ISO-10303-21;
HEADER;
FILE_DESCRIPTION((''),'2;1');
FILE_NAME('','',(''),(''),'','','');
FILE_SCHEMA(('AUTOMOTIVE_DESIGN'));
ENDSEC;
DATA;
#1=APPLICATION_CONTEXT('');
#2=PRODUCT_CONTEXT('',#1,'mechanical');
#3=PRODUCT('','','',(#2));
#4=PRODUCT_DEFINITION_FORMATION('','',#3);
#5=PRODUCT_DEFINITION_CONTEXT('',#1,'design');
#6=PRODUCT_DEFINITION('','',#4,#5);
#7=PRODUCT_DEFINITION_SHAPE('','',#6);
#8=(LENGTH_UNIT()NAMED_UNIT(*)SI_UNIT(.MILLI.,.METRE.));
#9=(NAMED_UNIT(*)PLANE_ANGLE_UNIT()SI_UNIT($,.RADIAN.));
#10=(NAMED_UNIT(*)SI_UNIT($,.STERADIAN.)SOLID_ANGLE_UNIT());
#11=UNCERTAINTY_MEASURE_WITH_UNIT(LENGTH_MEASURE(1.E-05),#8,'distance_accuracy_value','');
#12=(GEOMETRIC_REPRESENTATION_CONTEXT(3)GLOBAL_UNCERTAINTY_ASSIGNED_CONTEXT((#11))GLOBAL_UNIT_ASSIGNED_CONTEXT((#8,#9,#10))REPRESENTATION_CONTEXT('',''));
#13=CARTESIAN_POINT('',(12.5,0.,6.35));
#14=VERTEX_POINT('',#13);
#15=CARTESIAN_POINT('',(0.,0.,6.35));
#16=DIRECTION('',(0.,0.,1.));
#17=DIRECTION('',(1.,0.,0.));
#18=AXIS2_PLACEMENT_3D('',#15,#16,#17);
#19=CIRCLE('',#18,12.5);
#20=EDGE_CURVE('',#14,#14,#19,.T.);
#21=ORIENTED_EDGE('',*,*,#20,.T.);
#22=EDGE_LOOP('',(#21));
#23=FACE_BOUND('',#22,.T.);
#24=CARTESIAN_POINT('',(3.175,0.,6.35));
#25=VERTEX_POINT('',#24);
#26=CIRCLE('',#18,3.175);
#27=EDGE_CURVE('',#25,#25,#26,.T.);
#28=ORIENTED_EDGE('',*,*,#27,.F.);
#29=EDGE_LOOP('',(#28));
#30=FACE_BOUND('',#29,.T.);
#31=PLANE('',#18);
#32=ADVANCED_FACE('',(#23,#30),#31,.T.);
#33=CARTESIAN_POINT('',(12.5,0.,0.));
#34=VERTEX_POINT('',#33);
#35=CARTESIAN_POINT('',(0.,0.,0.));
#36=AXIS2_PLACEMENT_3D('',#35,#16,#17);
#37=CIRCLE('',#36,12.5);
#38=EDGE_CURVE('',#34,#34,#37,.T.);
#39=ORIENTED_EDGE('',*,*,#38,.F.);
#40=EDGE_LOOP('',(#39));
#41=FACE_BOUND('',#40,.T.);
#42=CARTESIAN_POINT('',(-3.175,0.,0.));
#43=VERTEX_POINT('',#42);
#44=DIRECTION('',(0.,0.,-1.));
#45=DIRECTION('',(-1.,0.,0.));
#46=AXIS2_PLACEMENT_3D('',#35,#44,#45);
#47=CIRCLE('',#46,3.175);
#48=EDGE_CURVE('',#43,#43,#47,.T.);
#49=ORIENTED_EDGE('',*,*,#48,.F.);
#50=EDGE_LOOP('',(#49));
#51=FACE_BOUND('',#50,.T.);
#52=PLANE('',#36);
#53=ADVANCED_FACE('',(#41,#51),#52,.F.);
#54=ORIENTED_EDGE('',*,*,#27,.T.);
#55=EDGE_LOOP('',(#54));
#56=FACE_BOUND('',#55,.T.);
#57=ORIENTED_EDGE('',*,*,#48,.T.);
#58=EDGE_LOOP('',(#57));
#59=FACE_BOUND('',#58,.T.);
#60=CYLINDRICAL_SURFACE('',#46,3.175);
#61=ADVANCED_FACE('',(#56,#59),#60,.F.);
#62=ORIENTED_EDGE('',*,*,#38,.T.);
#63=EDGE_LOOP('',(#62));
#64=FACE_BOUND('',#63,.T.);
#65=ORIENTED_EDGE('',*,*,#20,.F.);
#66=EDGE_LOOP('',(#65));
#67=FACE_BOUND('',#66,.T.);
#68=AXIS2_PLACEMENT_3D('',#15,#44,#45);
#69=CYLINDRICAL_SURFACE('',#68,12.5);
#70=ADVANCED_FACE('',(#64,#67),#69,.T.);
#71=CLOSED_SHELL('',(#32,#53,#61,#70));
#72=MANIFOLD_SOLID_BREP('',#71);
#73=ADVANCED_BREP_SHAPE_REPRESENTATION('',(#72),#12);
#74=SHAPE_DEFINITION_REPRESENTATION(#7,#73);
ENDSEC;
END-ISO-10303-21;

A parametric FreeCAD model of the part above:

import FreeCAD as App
import Part
import Sketcher
Q = App.Units.Quantity

doc = App.newDocument("Part")
body = doc.addObject("PartDesign::Body", "Body")

sketch1 = doc.addObject("Sketcher::SketchObject", "Sketch")
body.addObject(sketch1)
sketch1.AttachmentSupport = (doc.XY_Plane, [""])
sketch1.MapMode = "FlatFace"
sketch1.addGeometry(Part.Circle(App.Vector(0, 0, 0), App.Vector(0, 0, 1), 12), False)
sketch1.addConstraint([
    Sketcher.Constraint("Coincident", 0, 3, -1, 1),
    Sketcher.Constraint("Diameter", 0, Q("25 mm")),
])
pad1 = doc.addObject("PartDesign::Pad", "Pad")
body.addObject(pad1)
pad1.Profile = sketch1
pad1.Length = 6.35

sketch2 = doc.addObject("Sketcher::SketchObject", "Sketch001")
body.addObject(sketch2)
sketch2.AttachmentSupport = (doc.XY_Plane, [""])
sketch2.MapMode = "FlatFace"
sketch2.addGeometry(Part.Circle(App.Vector(0, 0, 0), App.Vector(0, 0, 1), 3.2), False)
sketch2.addConstraint([
    Sketcher.Constraint("Coincident", 0, 3, -1, 1),
    Sketcher.Constraint("Diameter", 0, Q("6.35 mm")),
])
doc.recompute()
hole = doc.addObject("PartDesign::Hole", "Hole")
body.addObject(hole)
hole.Profile = sketch2
hole.ThreadType = "None"
hole.Diameter = 6.35
hole.DepthType = "Dimension"
hole.Depth = 18
hole.DrillPoint = "Angled"
hole.DrillPointAngle = 118
hole.Reversed = True

doc.recompute()
